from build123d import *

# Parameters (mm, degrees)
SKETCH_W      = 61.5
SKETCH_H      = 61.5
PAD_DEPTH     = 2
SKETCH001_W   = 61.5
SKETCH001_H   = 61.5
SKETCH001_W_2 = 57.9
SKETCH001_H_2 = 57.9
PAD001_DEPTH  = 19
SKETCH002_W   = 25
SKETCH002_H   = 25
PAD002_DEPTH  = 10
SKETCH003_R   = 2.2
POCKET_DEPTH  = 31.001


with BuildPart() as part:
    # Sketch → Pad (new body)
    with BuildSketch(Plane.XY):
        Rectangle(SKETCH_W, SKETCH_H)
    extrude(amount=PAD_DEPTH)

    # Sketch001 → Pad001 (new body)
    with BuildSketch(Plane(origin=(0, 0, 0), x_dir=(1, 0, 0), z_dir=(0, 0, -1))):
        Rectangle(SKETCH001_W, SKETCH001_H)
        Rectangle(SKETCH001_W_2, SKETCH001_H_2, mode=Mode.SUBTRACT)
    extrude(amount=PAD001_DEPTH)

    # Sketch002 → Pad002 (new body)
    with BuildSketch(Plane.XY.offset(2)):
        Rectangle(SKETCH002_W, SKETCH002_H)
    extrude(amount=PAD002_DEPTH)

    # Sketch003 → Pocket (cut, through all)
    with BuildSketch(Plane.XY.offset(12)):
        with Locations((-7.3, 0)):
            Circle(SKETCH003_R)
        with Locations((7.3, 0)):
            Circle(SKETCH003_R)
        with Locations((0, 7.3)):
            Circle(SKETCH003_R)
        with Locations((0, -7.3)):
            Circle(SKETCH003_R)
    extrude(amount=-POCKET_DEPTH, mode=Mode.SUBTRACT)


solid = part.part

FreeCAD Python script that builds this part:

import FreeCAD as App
import Part
import Sketcher

doc = App.newDocument("Part")
body = doc.addObject("PartDesign::Body", "Body")

# Sketch on XY plane
sketch1 = body.newObject("Sketcher::SketchObject", "Sketch")
sketch1.AttachmentSupport = (doc.getObject("XY_Plane"), [""])
sketch1.MapMode = "FlatFace"
sketch1.addGeometry(Part.LineSegment(App.Vector(-31, 31, 0), App.Vector(-31, -31, 0)), False)
sketch1.addGeometry(Part.LineSegment(App.Vector(-31, -31, 0), App.Vector(31, -31, 0)), False)
sketch1.addGeometry(Part.LineSegment(App.Vector(31, -31, 0), App.Vector(31, 31, 0)), False)
sketch1.addGeometry(Part.LineSegment(App.Vector(31, 31, 0), App.Vector(-31, 31, 0)), False)
sketch1.addConstraint(Sketcher.Constraint("Coincident", 0, 2, 1, 1))
sketch1.addConstraint(Sketcher.Constraint("Coincident", 1, 2, 2, 1))
sketch1.addConstraint(Sketcher.Constraint("Coincident", 2, 2, 3, 1))
sketch1.addConstraint(Sketcher.Constraint("Coincident", 3, 2, 0, 1))
sketch1.addConstraint(Sketcher.Constraint("Vertical", 0))
sketch1.addConstraint(Sketcher.Constraint("Horizontal", 1))
sketch1.addConstraint(Sketcher.Constraint("Vertical", 2))
sketch1.addConstraint(Sketcher.Constraint("Horizontal", 3))
sketch1.addConstraint(Sketcher.Constraint("Symmetric", 0, 2, 2, 2, -1, 1))
sketch1.addConstraint(Sketcher.Constraint("Equal", 3, 0))
sketch1.addConstraint(Sketcher.Constraint("DistanceX", 1, 1, 1, 2, 61.5))
pad1 = body.newObject("PartDesign::Pad", "Pad")
pad1.Profile = sketch1
pad1.Length = 2

# Sketch on XY plane
sketch2 = body.newObject("Sketcher::SketchObject", "Sketch001")
sketch2.AttachmentSupport = (doc.getObject("XY_Plane"), [""])
sketch2.MapMode = "FlatFace"
sketch2.addGeometry(Part.LineSegment(App.Vector(-31, -31, 0), App.Vector(-31, 31, 0)), False)
sketch2.addGeometry(Part.LineSegment(App.Vector(-31, 31, 0), App.Vector(31, 31, 0)), False)
sketch2.addGeometry(Part.LineSegment(App.Vector(31, 31, 0), App.Vector(31, -31, 0)), False)
sketch2.addGeometry(Part.LineSegment(App.Vector(31, -31, 0), App.Vector(-31, -31, 0)), False)
sketch2.addGeometry(Part.LineSegment(App.Vector(29, 29, 0), App.Vector(-29, 29, 0)), False)
sketch2.addGeometry(Part.LineSegment(App.Vector(-29, 29, 0), App.Vector(-29, -29, 0)), False)
sketch2.addGeometry(Part.LineSegment(App.Vector(-29, -29, 0), App.Vector(29, -29, 0)), False)
sketch2.addGeometry(Part.LineSegment(App.Vector(29, -29, 0), App.Vector(29, 29, 0)), False)
sketch2.addConstraint(Sketcher.Constraint("Coincident", 0, 2, 1, 1))
sketch2.addConstraint(Sketcher.Constraint("Coincident", 1, 2, 2, 1))
sketch2.addConstraint(Sketcher.Constraint("Coincident", 2, 2, 3, 1))
sketch2.addConstraint(Sketcher.Constraint("Coincident", 3, 2, 0, 1))
sketch2.addConstraint(Sketcher.Constraint("Coincident", 4, 2, 5, 1))
sketch2.addConstraint(Sketcher.Constraint("Coincident", 5, 2, 6, 1))
sketch2.addConstraint(Sketcher.Constraint("Coincident", 6, 2, 7, 1))
sketch2.addConstraint(Sketcher.Constraint("Coincident", 7, 2, 4, 1))
sketch2.addConstraint(Sketcher.Constraint("Vertical", 0))
sketch2.addConstraint(Sketcher.Constraint("Horizontal", 1))
sketch2.addConstraint(Sketcher.Constraint("Vertical", 2))
sketch2.addConstraint(Sketcher.Constraint("Horizontal", 3))
sketch2.addConstraint(Sketcher.Constraint("Horizontal", 4))
sketch2.addConstraint(Sketcher.Constraint("Vertical", 5))
sketch2.addConstraint(Sketcher.Constraint("Horizontal", 6))
sketch2.addConstraint(Sketcher.Constraint("Vertical", 7))
sketch2.addConstraint(Sketcher.Constraint("Symmetric", 0, 2, 2, 2, -1, 1))
sketch2.addConstraint(Sketcher.Constraint("Symmetric", 4, 2, 6, 2, -1, 1))
sketch2.addConstraint(Sketcher.Constraint("Equal", 3, 0))
sketch2.addConstraint(Sketcher.Constraint("Equal", 6, 5))
sketch2.addConstraint(Sketcher.Constraint("DistanceX", 1, 1, 1, 2, 61.5))
sketch2.addConstraint(Sketcher.Constraint("DistanceX", 4, 2, 4, 1, 57.9))
pad2 = body.newObject("PartDesign::Pad", "Pad001")
pad2.Profile = sketch2
pad2.Length = 19
pad2.Reversed = True

# Sketch on XY plane
sketch3 = body.newObject("Sketcher::SketchObject", "Sketch002")
sketch3.AttachmentSupport = (doc.getObject("XY_Plane"), [""])
sketch3.MapMode = "FlatFace"
sketch3.AttachmentOffset = App.Placement(App.Vector(0, 0, 2), App.Rotation())
sketch3.addGeometry(Part.LineSegment(App.Vector(-12, 12, 0), App.Vector(-12, -12, 0)), False)
sketch3.addGeometry(Part.LineSegment(App.Vector(-12, -12, 0), App.Vector(12, -12, 0)), False)
sketch3.addGeometry(Part.LineSegment(App.Vector(12, -12, 0), App.Vector(12, 12, 0)), False)
sketch3.addGeometry(Part.LineSegment(App.Vector(12, 12, 0), App.Vector(-12, 12, 0)), False)
sketch3.addConstraint(Sketcher.Constraint("Coincident", 0, 2, 1, 1))
sketch3.addConstraint(Sketcher.Constraint("Coincident", 1, 2, 2, 1))
sketch3.addConstraint(Sketcher.Constraint("Coincident", 2, 2, 3, 1))
sketch3.addConstraint(Sketcher.Constraint("Coincident", 3, 2, 0, 1))
sketch3.addConstraint(Sketcher.Constraint("Vertical", 0))
sketch3.addConstraint(Sketcher.Constraint("Horizontal", 1))
sketch3.addConstraint(Sketcher.Constraint("Vertical", 2))
sketch3.addConstraint(Sketcher.Constraint("Horizontal", 3))
sketch3.addConstraint(Sketcher.Constraint("Symmetric", 0, 2, 2, 2, -1, 1))
sketch3.addConstraint(Sketcher.Constraint("Equal", 3, 0))
sketch3.addConstraint(Sketcher.Constraint("DistanceX", 1, 1, 1, 2, 25.0))
pad3 = body.newObject("PartDesign::Pad", "Pad002")
pad3.Profile = sketch3
pad3.Length = 10

# Sketch on XY plane
sketch4 = body.newObject("Sketcher::SketchObject", "Sketch003")
sketch4.AttachmentSupport = (doc.getObject("XY_Plane"), [""])
sketch4.MapMode = "FlatFace"
sketch4.AttachmentOffset = App.Placement(App.Vector(0, 0, 12), App.Rotation())
sketch4.addGeometry(Part.Circle(App.Vector(-7.3, 0, 0), App.Vector(0, 0, 1), 2.2), False)
sketch4.addGeometry(Part.Circle(App.Vector(7.3, 0, 0), App.Vector(0, 0, 1), 2.2), False)
sketch4.addGeometry(Part.Circle(App.Vector(0, 7.3, 0), App.Vector(0, 0, 1), 2.2), False)
sketch4.addGeometry(Part.Circle(App.Vector(0, -7.3, 0), App.Vector(0, 0, 1), 2.2), False)
sketch4.addConstraint(Sketcher.Constraint("Equal", 0, 1))
sketch4.addConstraint(Sketcher.Constraint("Equal", 1, 2))
sketch4.addConstraint(Sketcher.Constraint("Equal", 2, 3))
sketch4.addConstraint(Sketcher.Constraint("Symmetric", 0, 3, 1, 3, -1, 1))
sketch4.addConstraint(Sketcher.Constraint("Symmetric", 2, 3, 3, 3, -1, 1))
sketch4.addConstraint(Sketcher.Constraint("PointOnObject", 0, 3, -1))
sketch4.addConstraint(Sketcher.Constraint("PointOnObject", 2, 3, -2))
sketch4.addConstraint(Sketcher.Constraint("Diameter", 0, 4.4))
sketch4.addConstraint(Sketcher.Constraint("DistanceX", 0, 3, -1, 1, 7.3))
sketch4.addConstraint(Sketcher.Constraint("DistanceY", -1, 1, 2, 3, 7.3))
pocket1 = body.newObject("PartDesign::Pocket", "Pocket")
pocket1.Profile = sketch4
pocket1.Type = "ThroughAll"

doc.recompute()
